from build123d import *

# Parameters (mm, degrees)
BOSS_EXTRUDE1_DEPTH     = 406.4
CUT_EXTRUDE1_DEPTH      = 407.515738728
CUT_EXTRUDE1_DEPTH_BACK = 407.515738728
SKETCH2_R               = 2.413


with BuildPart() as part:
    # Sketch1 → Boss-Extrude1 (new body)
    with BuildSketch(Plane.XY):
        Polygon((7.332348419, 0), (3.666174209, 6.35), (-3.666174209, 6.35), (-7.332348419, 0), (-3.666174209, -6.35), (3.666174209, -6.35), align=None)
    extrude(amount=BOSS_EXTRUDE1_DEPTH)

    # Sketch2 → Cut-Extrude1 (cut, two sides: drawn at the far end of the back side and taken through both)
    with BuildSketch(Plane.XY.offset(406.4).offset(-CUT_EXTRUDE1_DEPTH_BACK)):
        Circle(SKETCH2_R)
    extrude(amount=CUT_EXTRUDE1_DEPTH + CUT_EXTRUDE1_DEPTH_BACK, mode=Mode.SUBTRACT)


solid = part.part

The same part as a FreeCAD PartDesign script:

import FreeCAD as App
import Part
import Sketcher
from FreeCAD import Vector
Q = App.Units.Quantity

doc = App.newDocument("Part")
body = doc.addObject("PartDesign::Body", "Body")

# Sketch on XY plane
sketch1 = doc.addObject("Sketcher::SketchObject", "Sketch")
body.addObject(sketch1)
sketch1.AttachmentSupport = (doc.XY_Plane, [""])
sketch1.MapMode = "FlatFace"
sketch1.addGeometry(Part.LineSegment(Vector(7.332348, 0, 0), Vector(3.666174, 6.35, 0)), False)
sketch1.addGeometry(Part.LineSegment(Vector(3.666174, 6.35, 0), Vector(-3.666174, 6.35, 0)), False)
sketch1.addGeometry(Part.LineSegment(Vector(-3.666174, 6.35, 0), Vector(-7.332348, 0, 0)), False)
sketch1.addGeometry(Part.LineSegment(Vector(-7.332348, 0, 0), Vector(-3.666174, -6.35, 0)), False)
sketch1.addGeometry(Part.LineSegment(Vector(-3.666174, -6.35, 0), Vector(3.666174, -6.35, 0)), False)
sketch1.addGeometry(Part.LineSegment(Vector(3.666174, -6.35, 0), Vector(7.332348, 0, 0)), False)
sketch1.addConstraint(Sketcher.Constraint("Coincident", 0, 2, 1, 1))
sketch1.addConstraint(Sketcher.Constraint("Coincident", 1, 2, 2, 1))
sketch1.addConstraint(Sketcher.Constraint("Coincident", 2, 2, 3, 1))
sketch1.addConstraint(Sketcher.Constraint("Coincident", 3, 2, 4, 1))
sketch1.addConstraint(Sketcher.Constraint("Coincident", 4, 2, 5, 1))
sketch1.addConstraint(Sketcher.Constraint("Coincident", 5, 2, 0, 1))
sketch1.addConstraint(Sketcher.Constraint("Horizontal", 1))
sketch1.addConstraint(Sketcher.Constraint("Horizontal", 4))
sketch1.addConstraint(Sketcher.Constraint("Symmetric", 0, 2, 3, 2, -1, 1))
sketch1.addConstraint(Sketcher.Constraint("Symmetric", 2, 2, 5, 2, -1, 1))
sketch1.addConstraint(Sketcher.Constraint("PointOnObject", 2, 2, -1))
sketch1.addConstraint(Sketcher.Constraint("Parallel", 2, 5))
sketch1.addConstraint(Sketcher.Constraint("Vertical", 1, 2, 3, 2))
sketch1.addConstraint(Sketcher.Constraint("Angle", 0, Q("120 deg")))
sketch1.addConstraint(Sketcher.Constraint("DistanceY", 3, 2, 1, 2, Q("0.5 in")))
sketch1.addConstraint(Sketcher.Constraint("DistanceX", 1, 2, 1, 1, Q("7.332348 mm")))
pad1 = doc.addObject("PartDesign::Pad", "Pad")
body.addObject(pad1)
pad1.Profile = sketch1
pad1.Length = Q("16 in")

# Sketch on XY plane
sketch2 = doc.addObject("Sketcher::SketchObject", "Sketch001")
body.addObject(sketch2)
sketch2.AttachmentSupport = (doc.XY_Plane, [""])
sketch2.MapMode = "FlatFace"
sketch2.AttachmentOffset = App.Placement(Vector(0, 0, 16 * 25.4), App.Rotation())
sketch2.addGeometry(Part.Circle(Vector(0, 0, 0), Vector(0, 0, 1), 2.413), False)
sketch2.addConstraint(Sketcher.Constraint("Coincident", 0, 3, -1, 1))
sketch2.addConstraint(Sketcher.Constraint("Diameter", 0, Q("0.19 in")))
pocket1 = doc.addObject("PartDesign::Pocket", "Pocket")
body.addObject(pocket1)
pocket1.Profile = sketch2
pocket1.Type = "ThroughAll"
pocket1.Midplane = True

doc.recompute()
